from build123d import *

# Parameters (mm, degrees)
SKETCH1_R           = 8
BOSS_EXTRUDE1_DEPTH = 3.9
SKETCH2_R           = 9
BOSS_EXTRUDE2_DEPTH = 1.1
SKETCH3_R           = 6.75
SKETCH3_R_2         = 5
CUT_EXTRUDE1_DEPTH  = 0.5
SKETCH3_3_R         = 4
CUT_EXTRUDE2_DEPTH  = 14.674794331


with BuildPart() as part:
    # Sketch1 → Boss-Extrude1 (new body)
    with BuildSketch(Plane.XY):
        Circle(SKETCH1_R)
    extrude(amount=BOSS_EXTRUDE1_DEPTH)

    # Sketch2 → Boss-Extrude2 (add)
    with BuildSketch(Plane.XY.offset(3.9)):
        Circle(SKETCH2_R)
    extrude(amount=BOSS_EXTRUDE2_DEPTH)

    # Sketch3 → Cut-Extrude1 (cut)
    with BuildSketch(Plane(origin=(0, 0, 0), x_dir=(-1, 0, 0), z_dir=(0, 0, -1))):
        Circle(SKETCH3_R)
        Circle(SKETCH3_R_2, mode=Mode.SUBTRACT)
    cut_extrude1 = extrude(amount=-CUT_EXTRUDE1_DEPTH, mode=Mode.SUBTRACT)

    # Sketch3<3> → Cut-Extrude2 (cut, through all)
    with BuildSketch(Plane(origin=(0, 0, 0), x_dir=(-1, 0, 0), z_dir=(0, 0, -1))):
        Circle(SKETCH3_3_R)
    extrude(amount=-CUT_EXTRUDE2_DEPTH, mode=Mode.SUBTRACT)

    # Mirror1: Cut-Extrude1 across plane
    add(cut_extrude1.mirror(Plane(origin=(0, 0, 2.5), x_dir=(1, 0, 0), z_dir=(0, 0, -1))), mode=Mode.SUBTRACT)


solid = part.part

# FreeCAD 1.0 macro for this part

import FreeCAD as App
import Part
import Sketcher

V = App.Vector
Q = App.Units.Quantity

doc = App.newDocument("Part")
body = doc.addObject("PartDesign::Body", "Body")

sketch1 = doc.addObject("Sketcher::SketchObject", "Sketch")
body.addObject(sketch1)
sketch1.AttachmentSupport = (doc.XY_Plane, [""])
sketch1.MapMode = "FlatFace"
sketch1.addGeometry(Part.Circle(V(0, 0, 0), V(0, 0, 1), 8), False)
sketch1.addConstraint([
    Sketcher.Constraint("Coincident", 0, 3, -1, 1),
    Sketcher.Constraint("Diameter", 0, Q("16 mm")),
])
pad1 = doc.addObject("PartDesign::Pad", "Pad")
body.addObject(pad1)
pad1.Profile = sketch1
pad1.Length = 3.9

sketch2 = doc.addObject("Sketcher::SketchObject", "Sketch001")
body.addObject(sketch2)
sketch2.AttachmentSupport = (doc.XY_Plane, [""])
sketch2.MapMode = "FlatFace"
sketch2.AttachmentOffset = App.Placement(V(0, 0, 3.9), App.Rotation())
sketch2.addGeometry(Part.Circle(V(0, 0, 0), V(0, 0, 1), 9), False)
sketch2.addConstraint([
    Sketcher.Constraint("Coincident", 0, 3, -1, 1),
    Sketcher.Constraint("Diameter", 0, Q("18 mm")),
])
pad2 = doc.addObject("PartDesign::Pad", "Pad001")
body.addObject(pad2)
pad2.Profile = sketch2
pad2.Length = 1.1

sketch3 = doc.addObject("Sketcher::SketchObject", "Sketch002")
body.addObject(sketch3)
sketch3.AttachmentSupport = (doc.XY_Plane, [""])
sketch3.MapMode = "FlatFace"
sketch3.addGeometry([
    Part.Circle(V(0, 0, 0), V(0, 0, 1), 6.75),
    Part.Circle(V(0, 0, 0), V(0, 0, 1), 5),
], False)
sketch3.addConstraint([
    Sketcher.Constraint("Coincident", 0, 3, -1, 1),
    Sketcher.Constraint("Coincident", 1, 3, -1, 1),
    Sketcher.Constraint("Diameter", 1, Q("10 mm")),
    Sketcher.Constraint("Diameter", 0, Q("13.5 mm")),
])
pocket1 = doc.addObject("PartDesign::Pocket", "Pocket")
body.addObject(pocket1)
pocket1.Profile = sketch3
pocket1.Length = 0.5
pocket1.Reversed = True

sketch4 = doc.addObject("Sketcher::SketchObject", "Sketch003")
body.addObject(sketch4)
sketch4.AttachmentSupport = (doc.XY_Plane, [""])
sketch4.MapMode = "FlatFace"
sketch4.addGeometry(Part.Circle(V(0, 0, 0), V(0, 0, 1), 4), False)
sketch4.addConstraint([
    Sketcher.Constraint("Coincident", 0, 3, -1, 1),
    Sketcher.Constraint("Diameter", 0, Q("8 mm")),
])
pocket2 = doc.addObject("PartDesign::Pocket", "Pocket001")
body.addObject(pocket2)
pocket2.Profile = sketch4
pocket2.Type = "ThroughAll"
pocket2.Reversed = True
doc.recompute()

datumplane = doc.addObject("PartDesign::Plane", "DatumPlane")
body.addObject(datumplane)
datumplane.AttachmentSupport = (doc.XY_Plane, [""])
datumplane.MapMode = "FlatFace"
datumplane.AttachmentOffset = App.Placement(V(0, 0, 2.5), App.Rotation())
mirrored = doc.addObject("PartDesign::Mirrored", "Mirrored")
body.addObject(mirrored)
mirrored.Originals = [pocket1]
mirrored.MirrorPlane = (datumplane, [""])
body.Tip = mirrored

doc.recompute()
